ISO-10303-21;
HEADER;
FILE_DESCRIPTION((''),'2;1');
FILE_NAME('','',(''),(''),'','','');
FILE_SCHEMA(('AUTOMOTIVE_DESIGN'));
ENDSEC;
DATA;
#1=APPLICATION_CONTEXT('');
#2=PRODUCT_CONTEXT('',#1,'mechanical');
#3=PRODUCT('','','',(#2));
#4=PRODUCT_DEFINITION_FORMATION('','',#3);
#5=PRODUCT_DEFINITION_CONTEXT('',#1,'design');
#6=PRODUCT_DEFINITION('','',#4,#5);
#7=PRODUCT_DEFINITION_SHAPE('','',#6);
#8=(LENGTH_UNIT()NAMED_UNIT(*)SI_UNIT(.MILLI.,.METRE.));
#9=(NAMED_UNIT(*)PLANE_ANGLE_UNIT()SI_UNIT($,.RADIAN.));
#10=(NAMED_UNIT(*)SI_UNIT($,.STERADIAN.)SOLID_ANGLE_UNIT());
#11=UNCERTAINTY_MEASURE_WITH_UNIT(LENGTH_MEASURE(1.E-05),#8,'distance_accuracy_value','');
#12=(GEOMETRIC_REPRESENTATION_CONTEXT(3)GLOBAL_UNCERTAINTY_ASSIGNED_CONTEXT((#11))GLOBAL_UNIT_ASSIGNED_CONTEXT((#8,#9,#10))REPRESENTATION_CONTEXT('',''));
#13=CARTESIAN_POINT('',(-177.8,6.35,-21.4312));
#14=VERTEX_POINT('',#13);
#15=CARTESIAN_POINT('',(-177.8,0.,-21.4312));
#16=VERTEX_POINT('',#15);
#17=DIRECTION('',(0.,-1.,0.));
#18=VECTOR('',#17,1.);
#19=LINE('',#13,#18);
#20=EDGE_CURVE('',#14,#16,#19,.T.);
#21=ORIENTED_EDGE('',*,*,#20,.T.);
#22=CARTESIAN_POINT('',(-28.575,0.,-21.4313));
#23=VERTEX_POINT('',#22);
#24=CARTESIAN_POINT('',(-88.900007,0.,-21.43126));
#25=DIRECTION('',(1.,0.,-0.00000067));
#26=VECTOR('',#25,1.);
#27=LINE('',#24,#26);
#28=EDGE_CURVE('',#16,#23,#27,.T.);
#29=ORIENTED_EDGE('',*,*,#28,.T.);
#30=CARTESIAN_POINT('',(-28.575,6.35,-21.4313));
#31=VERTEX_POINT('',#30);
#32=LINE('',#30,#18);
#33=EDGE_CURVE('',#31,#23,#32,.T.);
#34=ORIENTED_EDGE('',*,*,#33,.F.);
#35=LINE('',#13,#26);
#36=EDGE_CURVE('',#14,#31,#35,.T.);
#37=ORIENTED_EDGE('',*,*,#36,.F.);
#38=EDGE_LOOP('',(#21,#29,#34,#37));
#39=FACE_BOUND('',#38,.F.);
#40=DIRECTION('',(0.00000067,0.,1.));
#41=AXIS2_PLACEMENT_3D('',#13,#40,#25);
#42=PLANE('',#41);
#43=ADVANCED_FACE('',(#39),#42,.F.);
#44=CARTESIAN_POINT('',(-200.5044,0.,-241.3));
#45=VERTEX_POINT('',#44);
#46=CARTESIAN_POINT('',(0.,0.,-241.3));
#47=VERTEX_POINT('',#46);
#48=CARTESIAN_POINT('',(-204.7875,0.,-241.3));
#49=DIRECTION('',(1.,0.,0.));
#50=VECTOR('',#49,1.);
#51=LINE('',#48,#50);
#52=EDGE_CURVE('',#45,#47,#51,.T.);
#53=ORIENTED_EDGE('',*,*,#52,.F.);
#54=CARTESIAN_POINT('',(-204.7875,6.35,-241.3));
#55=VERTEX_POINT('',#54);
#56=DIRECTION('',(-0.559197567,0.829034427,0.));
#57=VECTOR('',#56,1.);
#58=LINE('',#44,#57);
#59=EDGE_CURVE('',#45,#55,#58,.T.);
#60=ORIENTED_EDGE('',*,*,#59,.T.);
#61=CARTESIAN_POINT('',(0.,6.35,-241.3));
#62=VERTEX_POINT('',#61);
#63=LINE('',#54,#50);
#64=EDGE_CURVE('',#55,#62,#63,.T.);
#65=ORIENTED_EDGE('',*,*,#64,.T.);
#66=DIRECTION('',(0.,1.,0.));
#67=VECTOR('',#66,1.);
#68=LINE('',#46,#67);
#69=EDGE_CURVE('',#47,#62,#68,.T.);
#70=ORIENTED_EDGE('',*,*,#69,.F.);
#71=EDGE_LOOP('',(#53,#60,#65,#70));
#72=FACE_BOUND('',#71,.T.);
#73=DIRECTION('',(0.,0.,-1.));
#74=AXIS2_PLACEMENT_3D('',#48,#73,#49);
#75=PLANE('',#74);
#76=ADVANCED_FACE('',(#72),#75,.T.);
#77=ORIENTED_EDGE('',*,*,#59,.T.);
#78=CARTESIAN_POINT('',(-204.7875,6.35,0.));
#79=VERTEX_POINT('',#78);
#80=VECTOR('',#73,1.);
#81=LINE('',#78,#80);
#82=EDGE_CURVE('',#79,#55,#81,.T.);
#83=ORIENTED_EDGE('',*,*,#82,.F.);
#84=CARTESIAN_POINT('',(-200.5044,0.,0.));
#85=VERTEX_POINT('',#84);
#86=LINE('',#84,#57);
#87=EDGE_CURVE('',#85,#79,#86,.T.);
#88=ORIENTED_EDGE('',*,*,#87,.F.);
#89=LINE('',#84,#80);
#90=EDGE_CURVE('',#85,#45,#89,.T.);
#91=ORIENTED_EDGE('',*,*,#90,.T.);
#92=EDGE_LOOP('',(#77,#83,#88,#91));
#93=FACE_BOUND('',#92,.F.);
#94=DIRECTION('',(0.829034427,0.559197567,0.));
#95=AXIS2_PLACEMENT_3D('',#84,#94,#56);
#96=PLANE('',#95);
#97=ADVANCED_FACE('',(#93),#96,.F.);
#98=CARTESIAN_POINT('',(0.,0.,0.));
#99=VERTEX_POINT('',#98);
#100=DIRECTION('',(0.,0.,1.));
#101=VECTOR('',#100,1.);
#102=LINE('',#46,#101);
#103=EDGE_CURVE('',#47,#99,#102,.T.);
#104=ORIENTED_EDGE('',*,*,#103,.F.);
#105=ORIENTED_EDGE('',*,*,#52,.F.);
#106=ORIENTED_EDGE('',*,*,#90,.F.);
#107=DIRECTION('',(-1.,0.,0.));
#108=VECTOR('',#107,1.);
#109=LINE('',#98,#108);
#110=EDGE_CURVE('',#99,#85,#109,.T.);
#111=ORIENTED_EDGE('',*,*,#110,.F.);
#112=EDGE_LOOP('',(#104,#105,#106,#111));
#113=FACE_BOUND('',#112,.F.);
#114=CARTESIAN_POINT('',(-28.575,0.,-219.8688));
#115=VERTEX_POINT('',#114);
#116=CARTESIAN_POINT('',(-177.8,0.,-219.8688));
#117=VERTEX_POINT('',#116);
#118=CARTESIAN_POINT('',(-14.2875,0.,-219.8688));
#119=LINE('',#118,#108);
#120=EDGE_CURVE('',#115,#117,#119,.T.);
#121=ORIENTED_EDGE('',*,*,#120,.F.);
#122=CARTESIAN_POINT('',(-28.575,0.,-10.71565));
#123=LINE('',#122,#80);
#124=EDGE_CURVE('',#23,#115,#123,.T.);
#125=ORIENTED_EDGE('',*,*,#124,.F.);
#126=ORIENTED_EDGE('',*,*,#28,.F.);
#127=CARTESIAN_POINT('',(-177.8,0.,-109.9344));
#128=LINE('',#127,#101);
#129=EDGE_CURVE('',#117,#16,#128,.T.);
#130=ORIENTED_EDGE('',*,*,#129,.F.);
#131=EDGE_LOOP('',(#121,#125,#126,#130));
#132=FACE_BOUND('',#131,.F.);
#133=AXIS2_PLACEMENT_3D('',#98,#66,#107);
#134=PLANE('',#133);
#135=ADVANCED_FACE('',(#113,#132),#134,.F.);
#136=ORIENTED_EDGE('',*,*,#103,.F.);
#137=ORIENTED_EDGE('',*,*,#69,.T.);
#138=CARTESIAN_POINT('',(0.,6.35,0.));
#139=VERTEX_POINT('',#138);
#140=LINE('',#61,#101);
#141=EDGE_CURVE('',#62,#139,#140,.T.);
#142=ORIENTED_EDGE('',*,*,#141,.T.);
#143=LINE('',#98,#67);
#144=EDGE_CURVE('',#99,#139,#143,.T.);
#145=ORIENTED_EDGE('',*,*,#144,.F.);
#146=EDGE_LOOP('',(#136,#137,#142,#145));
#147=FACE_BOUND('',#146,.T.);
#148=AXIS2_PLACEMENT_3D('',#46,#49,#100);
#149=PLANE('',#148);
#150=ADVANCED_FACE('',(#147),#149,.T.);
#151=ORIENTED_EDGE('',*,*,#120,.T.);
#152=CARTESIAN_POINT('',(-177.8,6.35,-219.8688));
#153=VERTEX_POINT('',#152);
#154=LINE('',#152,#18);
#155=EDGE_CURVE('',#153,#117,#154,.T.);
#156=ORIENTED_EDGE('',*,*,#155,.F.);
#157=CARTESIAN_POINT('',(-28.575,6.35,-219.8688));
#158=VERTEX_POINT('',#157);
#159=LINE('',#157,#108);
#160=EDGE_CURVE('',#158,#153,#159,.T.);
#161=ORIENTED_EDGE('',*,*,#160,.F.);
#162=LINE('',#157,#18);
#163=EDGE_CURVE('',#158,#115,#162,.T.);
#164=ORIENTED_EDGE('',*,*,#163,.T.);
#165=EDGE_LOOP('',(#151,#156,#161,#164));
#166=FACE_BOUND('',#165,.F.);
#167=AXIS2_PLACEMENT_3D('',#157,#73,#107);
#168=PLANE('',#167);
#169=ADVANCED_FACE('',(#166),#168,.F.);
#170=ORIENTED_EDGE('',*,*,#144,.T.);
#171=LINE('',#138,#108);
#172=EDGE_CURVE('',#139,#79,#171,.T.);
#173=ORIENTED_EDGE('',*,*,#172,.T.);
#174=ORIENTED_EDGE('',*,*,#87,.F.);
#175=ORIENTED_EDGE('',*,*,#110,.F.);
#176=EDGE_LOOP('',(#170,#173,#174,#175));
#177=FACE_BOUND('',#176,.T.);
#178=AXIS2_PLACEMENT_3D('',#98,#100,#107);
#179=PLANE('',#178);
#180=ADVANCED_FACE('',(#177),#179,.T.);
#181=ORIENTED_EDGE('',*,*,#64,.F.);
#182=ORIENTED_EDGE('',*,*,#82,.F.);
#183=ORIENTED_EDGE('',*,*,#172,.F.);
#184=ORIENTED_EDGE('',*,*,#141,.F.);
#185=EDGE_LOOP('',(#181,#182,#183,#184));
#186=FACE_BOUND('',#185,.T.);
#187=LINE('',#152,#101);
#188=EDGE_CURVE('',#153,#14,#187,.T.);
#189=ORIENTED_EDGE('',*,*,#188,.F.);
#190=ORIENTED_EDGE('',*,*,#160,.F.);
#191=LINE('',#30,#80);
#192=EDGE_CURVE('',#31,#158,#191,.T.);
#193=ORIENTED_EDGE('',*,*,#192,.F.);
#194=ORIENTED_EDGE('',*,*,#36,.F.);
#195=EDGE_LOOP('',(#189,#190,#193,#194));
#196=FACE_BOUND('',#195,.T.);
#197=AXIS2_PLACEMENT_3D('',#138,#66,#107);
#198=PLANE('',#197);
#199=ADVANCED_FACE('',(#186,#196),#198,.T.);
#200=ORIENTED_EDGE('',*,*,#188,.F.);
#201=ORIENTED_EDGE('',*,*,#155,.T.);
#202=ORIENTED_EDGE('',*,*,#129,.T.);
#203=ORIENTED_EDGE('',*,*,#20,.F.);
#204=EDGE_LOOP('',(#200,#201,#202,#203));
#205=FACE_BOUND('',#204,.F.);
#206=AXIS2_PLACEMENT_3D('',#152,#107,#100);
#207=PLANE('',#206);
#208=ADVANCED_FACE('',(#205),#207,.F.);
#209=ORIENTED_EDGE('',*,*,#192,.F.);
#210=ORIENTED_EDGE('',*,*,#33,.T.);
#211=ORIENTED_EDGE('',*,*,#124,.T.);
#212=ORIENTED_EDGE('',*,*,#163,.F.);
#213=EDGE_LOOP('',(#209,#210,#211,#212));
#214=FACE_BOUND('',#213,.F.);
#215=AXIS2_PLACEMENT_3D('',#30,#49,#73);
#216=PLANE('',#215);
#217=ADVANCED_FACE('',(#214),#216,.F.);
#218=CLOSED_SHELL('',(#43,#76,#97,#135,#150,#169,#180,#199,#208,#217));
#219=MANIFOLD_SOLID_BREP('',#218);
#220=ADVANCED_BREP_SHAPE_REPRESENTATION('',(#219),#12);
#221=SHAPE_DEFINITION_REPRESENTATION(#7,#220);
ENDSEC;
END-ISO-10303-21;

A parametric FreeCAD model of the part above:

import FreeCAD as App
import Part
import Sketcher

V = App.Vector
Q = App.Units.Quantity


def add_polygon(sketch, points):
    """Adds a closed chain of lines whose ends are joined by coincident constraints."""
    first, n = sketch.GeometryCount, len(points)
    for a, b in zip(points, points[1:] + points[:1]):
        sketch.addGeometry(Part.LineSegment(App.Vector(*a, 0), App.Vector(*b, 0)), False)
    for i in range(n):
        sketch.addConstraint(Sketcher.Constraint("Coincident", first + i, 2, first + (i + 1) % n, 1))

doc = App.newDocument("Part")
body = doc.addObject("PartDesign::Body", "Body")

sketch1 = body.newObject("Sketcher::SketchObject", "Sketch")
sketch1.AttachmentSupport = (doc.getObject("XZ_Plane"), [""])
sketch1.MapMode = "FlatFace"
add_polygon(sketch1, [(-205, 0), (0, 0), (0, -241), (-205, -241)])
sketch1.addConstraint([
    Sketcher.Constraint("Horizontal", 0),
    Sketcher.Constraint("Vertical", 1),
    Sketcher.Constraint("Horizontal", 2),
    Sketcher.Constraint("Vertical", 3),
    Sketcher.Constraint("Coincident", 0, 2, -1, 1),
    Sketcher.Constraint("DistanceY", 1, 2, 1, 1, Q("9.5 in")),
    Sketcher.Constraint("DistanceX", 0, 1, 0, 2, Q("8.0625 in")),
])
pad1 = body.newObject("PartDesign::Pad", "Pad")
pad1.Profile = sketch1
pad1.Length = Q("0.25 in")
pad1.Reversed = True

sketch2 = body.newObject("Sketcher::SketchObject", "Sketch001")
sketch2.AttachmentSupport = (doc.getObject("XZ_Plane"), [""])
sketch2.MapMode = "FlatFace"
sketch2.AttachmentOffset = App.Placement(V(0, 0, -0.25 * 25.4), App.Rotation())
add_polygon(sketch2, [(-29, -21), (-29, -220), (-178, -220), (-178, -21)])
sketch2.addConstraint([
    Sketcher.Constraint("Vertical", 0),
    Sketcher.Constraint("Horizontal", 1),
    Sketcher.Constraint("Vertical", 2),
    Sketcher.Constraint("Horizontal", 3),
    Sketcher.Constraint("DistanceX", 1, 2, 1, 1, Q("5.875 in")),
    Sketcher.Constraint("DistanceY", 0, 2, 0, 1, Q("7.8125 in")),
    Sketcher.Constraint("DistanceY", 2, 2, -1, 1, Q("0.843748 in")),
    Sketcher.Constraint("DistanceX", 1, 2, -1, 1, Q("7 in")),
])
pocket1 = body.newObject("PartDesign::Pocket", "Pocket")
pocket1.Profile = sketch2
pocket1.Length = Q("1 in")
pocket1.Reversed = True

sketch3 = body.newObject("Sketcher::SketchObject", "Sketch002")
sketch3.AttachmentSupport = (doc.getObject("XY_Plane"), [""])
sketch3.MapMode = "FlatFace"
add_polygon(sketch3, [(-204.8, 0), (-200.5, 0), (-204.8, 6.3)])
sketch3.addConstraint([
    Sketcher.Constraint("Horizontal", 0),
    Sketcher.Constraint("Vertical", 2),
    Sketcher.Constraint("PointOnObject", 0, 2, -1),
    Sketcher.Constraint("Angle", 1, Q("124.0003 deg")),
    Sketcher.Constraint("DistanceY", 2, 2, 2, 1, Q("0.25 in")),
    Sketcher.Constraint("DistanceX", 1, 2, -1, 1, Q("8.0625 in")),
])
pocket2 = body.newObject("PartDesign::Pocket", "Pocket001")
pocket2.Profile = sketch3
pocket2.Length = Q("9.5 in")

doc.recompute()
